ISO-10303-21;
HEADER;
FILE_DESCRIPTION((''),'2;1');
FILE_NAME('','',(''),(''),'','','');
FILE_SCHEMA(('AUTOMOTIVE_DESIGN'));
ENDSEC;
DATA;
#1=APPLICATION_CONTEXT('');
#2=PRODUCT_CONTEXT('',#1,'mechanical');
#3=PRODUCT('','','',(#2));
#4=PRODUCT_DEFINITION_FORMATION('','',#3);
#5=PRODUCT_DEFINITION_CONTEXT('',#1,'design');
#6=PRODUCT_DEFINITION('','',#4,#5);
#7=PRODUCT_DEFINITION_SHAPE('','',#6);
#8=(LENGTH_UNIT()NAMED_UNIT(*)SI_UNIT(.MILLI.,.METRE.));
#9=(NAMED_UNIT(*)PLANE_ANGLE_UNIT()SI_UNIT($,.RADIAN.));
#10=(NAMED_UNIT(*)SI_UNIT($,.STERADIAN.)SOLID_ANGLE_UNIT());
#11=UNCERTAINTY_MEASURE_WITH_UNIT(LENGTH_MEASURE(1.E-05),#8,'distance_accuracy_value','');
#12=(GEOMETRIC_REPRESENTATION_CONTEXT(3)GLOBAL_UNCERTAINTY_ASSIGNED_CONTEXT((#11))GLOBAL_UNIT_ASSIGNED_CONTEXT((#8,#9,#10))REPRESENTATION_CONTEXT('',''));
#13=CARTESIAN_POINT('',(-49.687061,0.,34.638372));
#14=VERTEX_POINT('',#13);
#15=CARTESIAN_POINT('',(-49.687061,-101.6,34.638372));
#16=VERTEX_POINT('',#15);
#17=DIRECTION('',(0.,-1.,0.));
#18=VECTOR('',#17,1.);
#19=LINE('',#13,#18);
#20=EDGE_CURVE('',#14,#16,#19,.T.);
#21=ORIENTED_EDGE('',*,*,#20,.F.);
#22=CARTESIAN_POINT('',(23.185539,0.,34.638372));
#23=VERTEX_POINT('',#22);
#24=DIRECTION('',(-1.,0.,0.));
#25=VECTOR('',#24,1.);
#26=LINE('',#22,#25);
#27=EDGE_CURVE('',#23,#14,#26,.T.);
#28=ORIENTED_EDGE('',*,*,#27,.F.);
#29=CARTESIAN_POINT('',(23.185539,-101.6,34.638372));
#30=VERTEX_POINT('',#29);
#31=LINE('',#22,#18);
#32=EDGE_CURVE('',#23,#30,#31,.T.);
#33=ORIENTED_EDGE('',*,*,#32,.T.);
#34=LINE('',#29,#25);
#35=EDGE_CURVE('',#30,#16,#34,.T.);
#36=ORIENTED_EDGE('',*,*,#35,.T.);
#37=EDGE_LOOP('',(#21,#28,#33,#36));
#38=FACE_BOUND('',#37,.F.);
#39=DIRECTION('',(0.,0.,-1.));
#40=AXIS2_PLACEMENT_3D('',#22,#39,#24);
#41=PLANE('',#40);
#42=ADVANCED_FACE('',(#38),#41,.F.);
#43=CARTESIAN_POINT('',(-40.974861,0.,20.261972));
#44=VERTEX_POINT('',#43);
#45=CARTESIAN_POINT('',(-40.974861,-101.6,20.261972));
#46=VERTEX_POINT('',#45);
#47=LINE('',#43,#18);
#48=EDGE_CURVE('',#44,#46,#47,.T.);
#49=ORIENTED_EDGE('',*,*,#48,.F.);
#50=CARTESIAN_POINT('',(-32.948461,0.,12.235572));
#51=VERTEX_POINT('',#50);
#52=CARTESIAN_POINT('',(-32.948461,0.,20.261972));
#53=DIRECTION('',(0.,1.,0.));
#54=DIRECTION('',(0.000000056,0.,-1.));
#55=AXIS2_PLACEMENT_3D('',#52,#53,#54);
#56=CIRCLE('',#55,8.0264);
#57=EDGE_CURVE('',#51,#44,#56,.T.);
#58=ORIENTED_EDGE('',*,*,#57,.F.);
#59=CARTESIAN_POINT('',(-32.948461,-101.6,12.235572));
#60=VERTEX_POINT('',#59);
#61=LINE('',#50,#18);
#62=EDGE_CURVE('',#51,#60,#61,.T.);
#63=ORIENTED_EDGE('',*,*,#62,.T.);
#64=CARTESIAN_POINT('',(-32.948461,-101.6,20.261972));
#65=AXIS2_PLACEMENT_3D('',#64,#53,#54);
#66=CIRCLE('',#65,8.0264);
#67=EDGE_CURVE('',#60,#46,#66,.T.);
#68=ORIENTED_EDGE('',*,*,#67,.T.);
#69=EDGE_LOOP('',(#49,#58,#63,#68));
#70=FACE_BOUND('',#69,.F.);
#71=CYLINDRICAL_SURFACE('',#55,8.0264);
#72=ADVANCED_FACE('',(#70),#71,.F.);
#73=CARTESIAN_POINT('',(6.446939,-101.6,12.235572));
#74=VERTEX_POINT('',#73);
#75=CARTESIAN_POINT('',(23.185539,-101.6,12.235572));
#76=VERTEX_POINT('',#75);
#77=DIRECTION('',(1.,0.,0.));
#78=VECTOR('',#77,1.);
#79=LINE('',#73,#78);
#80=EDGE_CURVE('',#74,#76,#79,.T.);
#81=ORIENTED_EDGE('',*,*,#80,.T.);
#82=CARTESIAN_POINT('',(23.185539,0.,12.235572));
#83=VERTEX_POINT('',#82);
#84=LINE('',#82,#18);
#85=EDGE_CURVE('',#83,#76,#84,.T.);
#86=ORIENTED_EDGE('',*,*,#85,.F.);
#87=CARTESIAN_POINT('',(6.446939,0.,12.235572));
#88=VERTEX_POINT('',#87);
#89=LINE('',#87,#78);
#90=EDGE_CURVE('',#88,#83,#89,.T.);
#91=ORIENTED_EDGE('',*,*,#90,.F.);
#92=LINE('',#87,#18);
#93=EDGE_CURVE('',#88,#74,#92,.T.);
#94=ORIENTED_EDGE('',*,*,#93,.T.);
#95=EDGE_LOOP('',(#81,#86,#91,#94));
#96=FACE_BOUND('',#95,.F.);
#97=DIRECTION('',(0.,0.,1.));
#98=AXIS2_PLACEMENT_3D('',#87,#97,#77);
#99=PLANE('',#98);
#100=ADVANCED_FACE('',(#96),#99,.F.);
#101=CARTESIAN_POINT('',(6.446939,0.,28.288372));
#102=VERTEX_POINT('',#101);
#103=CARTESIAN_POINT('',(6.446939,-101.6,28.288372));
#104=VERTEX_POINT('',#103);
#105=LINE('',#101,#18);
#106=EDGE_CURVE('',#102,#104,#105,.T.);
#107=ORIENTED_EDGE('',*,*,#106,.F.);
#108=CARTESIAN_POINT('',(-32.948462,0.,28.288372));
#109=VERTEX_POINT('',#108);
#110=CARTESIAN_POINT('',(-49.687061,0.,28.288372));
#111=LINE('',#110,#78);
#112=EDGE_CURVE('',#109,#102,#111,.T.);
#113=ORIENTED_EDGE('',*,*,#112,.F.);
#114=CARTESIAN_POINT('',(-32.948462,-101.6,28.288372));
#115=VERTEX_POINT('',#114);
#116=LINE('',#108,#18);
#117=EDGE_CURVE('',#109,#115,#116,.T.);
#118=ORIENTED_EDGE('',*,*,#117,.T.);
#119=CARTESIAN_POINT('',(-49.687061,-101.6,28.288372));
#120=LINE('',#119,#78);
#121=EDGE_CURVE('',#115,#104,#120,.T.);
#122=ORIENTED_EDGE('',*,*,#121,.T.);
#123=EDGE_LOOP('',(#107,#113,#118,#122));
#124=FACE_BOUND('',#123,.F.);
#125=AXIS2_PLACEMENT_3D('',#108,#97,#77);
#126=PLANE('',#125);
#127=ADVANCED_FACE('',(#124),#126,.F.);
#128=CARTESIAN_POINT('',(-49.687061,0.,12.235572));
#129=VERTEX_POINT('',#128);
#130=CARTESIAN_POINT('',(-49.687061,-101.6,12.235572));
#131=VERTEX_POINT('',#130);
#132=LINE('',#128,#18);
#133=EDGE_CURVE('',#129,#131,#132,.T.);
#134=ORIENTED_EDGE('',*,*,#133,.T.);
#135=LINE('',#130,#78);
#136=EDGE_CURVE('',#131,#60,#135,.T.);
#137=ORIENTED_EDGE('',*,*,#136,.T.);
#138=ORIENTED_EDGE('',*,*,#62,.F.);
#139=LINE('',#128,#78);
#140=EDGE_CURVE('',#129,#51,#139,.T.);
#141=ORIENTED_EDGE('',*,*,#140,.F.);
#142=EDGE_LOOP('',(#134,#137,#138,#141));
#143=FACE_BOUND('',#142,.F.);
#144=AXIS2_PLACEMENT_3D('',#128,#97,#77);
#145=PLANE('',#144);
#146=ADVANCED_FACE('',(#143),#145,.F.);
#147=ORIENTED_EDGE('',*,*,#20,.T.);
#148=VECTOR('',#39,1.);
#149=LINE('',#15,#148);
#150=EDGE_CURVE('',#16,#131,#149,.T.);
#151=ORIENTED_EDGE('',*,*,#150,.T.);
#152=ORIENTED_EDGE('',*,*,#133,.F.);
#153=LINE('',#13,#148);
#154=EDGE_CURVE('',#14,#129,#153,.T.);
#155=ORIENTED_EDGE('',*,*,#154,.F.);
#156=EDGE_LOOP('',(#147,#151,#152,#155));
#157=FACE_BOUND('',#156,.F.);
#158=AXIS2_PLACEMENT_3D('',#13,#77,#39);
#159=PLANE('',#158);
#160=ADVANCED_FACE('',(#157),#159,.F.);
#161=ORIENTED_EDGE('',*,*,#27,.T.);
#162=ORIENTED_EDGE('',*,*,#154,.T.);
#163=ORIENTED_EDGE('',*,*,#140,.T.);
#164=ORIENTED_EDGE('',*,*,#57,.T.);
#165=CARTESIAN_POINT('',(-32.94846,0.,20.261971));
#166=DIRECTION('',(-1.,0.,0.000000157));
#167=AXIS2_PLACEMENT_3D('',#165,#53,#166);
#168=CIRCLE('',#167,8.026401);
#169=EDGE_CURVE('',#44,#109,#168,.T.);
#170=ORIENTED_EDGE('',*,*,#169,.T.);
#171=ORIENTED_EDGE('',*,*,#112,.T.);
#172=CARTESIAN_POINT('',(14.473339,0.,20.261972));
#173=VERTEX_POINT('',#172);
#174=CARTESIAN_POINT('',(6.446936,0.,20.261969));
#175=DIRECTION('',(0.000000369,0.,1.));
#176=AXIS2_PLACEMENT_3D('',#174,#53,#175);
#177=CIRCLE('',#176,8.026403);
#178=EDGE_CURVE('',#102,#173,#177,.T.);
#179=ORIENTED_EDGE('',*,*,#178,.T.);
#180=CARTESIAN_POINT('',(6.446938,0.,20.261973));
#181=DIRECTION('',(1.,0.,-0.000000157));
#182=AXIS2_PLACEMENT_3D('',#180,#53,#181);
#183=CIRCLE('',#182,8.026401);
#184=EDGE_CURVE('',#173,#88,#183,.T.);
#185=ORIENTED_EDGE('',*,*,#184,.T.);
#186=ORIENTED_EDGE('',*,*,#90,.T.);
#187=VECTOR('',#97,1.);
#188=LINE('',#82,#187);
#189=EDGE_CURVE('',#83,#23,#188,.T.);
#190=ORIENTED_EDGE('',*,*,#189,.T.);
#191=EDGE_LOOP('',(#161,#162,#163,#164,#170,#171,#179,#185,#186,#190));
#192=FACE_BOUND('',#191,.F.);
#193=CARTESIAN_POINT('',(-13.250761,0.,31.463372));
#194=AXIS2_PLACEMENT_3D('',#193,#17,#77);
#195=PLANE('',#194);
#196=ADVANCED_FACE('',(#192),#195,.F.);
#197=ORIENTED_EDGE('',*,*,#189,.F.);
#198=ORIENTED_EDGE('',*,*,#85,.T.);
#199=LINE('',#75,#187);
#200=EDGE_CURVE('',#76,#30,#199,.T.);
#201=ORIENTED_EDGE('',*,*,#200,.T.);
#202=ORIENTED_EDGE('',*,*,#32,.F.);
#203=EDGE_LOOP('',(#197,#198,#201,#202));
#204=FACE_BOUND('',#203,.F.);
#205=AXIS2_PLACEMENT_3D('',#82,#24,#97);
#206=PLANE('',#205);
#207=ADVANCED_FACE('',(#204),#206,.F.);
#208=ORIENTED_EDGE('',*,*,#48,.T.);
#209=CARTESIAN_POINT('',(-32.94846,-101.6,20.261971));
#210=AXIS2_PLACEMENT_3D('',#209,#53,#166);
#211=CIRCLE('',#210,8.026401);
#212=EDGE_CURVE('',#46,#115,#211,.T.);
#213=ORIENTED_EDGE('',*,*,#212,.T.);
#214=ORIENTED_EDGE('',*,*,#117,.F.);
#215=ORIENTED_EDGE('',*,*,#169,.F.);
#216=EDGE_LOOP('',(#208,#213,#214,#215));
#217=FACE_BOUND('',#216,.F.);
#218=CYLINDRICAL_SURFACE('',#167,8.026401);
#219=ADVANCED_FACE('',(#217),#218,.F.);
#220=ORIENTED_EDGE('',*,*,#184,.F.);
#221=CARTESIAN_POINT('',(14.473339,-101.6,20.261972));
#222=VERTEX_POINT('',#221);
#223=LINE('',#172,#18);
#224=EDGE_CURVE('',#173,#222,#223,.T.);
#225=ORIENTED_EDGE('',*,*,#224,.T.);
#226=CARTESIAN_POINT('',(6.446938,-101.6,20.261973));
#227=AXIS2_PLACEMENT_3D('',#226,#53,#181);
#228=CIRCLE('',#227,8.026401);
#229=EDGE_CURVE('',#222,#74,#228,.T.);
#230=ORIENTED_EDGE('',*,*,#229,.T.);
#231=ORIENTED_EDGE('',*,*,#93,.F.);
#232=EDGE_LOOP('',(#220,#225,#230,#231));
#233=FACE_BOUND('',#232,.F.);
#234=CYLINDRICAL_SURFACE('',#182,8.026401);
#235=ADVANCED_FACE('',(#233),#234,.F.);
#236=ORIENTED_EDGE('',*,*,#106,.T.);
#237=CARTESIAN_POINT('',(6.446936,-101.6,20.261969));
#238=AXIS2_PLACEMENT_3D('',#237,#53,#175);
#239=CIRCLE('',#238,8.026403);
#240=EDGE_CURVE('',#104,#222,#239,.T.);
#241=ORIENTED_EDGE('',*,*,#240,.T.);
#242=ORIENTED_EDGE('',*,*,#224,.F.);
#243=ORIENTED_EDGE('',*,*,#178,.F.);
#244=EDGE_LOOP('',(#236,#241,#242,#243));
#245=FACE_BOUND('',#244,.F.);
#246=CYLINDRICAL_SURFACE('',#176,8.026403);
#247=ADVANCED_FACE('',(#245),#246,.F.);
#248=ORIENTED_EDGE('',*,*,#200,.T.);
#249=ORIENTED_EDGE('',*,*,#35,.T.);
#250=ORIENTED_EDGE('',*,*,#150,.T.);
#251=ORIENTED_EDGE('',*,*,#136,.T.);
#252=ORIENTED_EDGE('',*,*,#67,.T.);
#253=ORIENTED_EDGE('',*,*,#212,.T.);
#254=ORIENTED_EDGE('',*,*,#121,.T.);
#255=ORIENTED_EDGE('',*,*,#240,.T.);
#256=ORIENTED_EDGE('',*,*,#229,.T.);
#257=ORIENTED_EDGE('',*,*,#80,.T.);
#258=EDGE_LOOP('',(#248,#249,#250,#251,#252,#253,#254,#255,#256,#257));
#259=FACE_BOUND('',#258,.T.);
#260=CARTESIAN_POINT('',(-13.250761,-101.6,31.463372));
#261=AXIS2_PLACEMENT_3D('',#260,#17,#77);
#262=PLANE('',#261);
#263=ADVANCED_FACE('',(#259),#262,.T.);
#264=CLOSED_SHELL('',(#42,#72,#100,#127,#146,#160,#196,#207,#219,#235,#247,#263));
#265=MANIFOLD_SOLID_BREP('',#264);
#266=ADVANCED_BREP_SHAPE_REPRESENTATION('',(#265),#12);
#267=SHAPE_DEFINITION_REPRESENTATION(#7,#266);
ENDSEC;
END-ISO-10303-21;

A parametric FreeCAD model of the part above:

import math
import FreeCAD as App
import Part
import Sketcher
from FreeCAD import Vector
Q = App.Units.Quantity

doc = App.newDocument("Part")
body = doc.addObject("PartDesign::Body", "Body")

# Sketch on XZ plane
sketch1 = doc.addObject("Sketcher::SketchObject", "Sketch")
body.addObject(sketch1)
sketch1.AttachmentSupport = (doc.XZ_Plane, [""])
sketch1.MapMode = "FlatFace"
sketch1.addGeometry(Part.LineSegment(Vector(23.185539, 34.638372, 0), Vector(-49.687061, 34.638372, 0)), False)
sketch1.addGeometry(Part.LineSegment(Vector(-49.687061, 34.638372, 0), Vector(-49.687061, 12.235572, 0)), False)
sketch1.addGeometry(Part.LineSegment(Vector(-49.687061, 12.235572, 0), Vector(-32.948461, 12.235572, 0)), False)
sketch1.addGeometry(Part.ArcOfCircle(Part.Circle(Vector(-32.948461, 20.261972, 0), Vector(0, 0, 1), 8.0264), math.radians(179.999997), math.radians(270.000003)), False)
sketch1.addGeometry(Part.ArcOfCircle(Part.Circle(Vector(-32.94846, 20.261971, 0), Vector(0, 0, 1), 8.026401), math.radians(90.000016), math.radians(179.999991)), False)
sketch1.addGeometry(Part.LineSegment(Vector(-32.948462, 28.288372, 0), Vector(6.446939, 28.288372, 0)), False)
sketch1.addGeometry(Part.ArcOfCircle(Part.Circle(Vector(6.446936, 20.261969, 0), Vector(0, 0, 1), 8.026403), math.radians(0.000021), math.radians(89.999979)), False)
sketch1.addGeometry(Part.ArcOfCircle(Part.Circle(Vector(6.446938, 20.261973, 0), Vector(0, 0, 1), 8.026401), math.radians(-89.999991), math.radians(-0.000009)), False)
sketch1.addGeometry(Part.LineSegment(Vector(6.446939, 12.235572, 0), Vector(23.185539, 12.235572, 0)), False)
sketch1.addGeometry(Part.LineSegment(Vector(23.185539, 12.235572, 0), Vector(23.185539, 34.638372, 0)), False)
sketch1.addConstraint(Sketcher.Constraint("Coincident", 0, 2, 1, 1))
sketch1.addConstraint(Sketcher.Constraint("Coincident", 1, 2, 2, 1))
sketch1.addConstraint(Sketcher.Constraint("Tangent", 2, 2, 3, 2))
sketch1.addConstraint(Sketcher.Constraint("Tangent", 3, 1, 4, 2))
sketch1.addConstraint(Sketcher.Constraint("Tangent", 4, 1, 5, 1))
sketch1.addConstraint(Sketcher.Constraint("Tangent", 5, 2, 6, 2))
sketch1.addConstraint(Sketcher.Constraint("Tangent", 6, 1, 7, 2))
sketch1.addConstraint(Sketcher.Constraint("Tangent", 7, 1, 8, 1))
sketch1.addConstraint(Sketcher.Constraint("Coincident", 8, 2, 9, 1))
sketch1.addConstraint(Sketcher.Constraint("Coincident", 9, 2, 0, 1))
sketch1.addConstraint(Sketcher.Constraint("Horizontal", 0))
sketch1.addConstraint(Sketcher.Constraint("Vertical", 1))
sketch1.addConstraint(Sketcher.Constraint("Horizontal", 2))
sketch1.addConstraint(Sketcher.Constraint("Horizontal", 5))
sketch1.addConstraint(Sketcher.Constraint("Horizontal", 8))
sketch1.addConstraint(Sketcher.Constraint("Vertical", 9))
sketch1.addConstraint(Sketcher.Constraint("Equal", 3, 4))
sketch1.addConstraint(Sketcher.Constraint("Equal", 4, 6))
sketch1.addConstraint(Sketcher.Constraint("Equal", 6, 7))
sketch1.addConstraint(Sketcher.Constraint("Horizontal", 7, 3, 3, 1))
sketch1.addConstraint(Sketcher.Constraint("Horizontal", 3, 1, 6, 1))
sketch1.addConstraint(Sketcher.Constraint("Equal", 2, 8))
sketch1.addConstraint(Sketcher.Constraint("Radius", 3, Q("0.316 in")))
sketch1.addConstraint(Sketcher.Constraint("DistanceX", 0, 2, 0, 1, Q("2.869 in")))
sketch1.addConstraint(Sketcher.Constraint("DistanceX", 2, 1, 2, 2, Q("0.659 in")))
sketch1.addConstraint(Sketcher.Constraint("DistanceY", 1, 2, 1, 1, Q("0.882 in")))
sketch1.addConstraint(Sketcher.Constraint("DistanceX", 3, 3, -1, 1, Q("32.948461 mm")))
sketch1.addConstraint(Sketcher.Constraint("DistanceY", -1, 1, 3, 3, Q("20.261972 mm")))
pad1 = doc.addObject("PartDesign::Pad", "Pad")
body.addObject(pad1)
pad1.Profile = sketch1
pad1.Length = Q("4 in")

doc.recompute()
